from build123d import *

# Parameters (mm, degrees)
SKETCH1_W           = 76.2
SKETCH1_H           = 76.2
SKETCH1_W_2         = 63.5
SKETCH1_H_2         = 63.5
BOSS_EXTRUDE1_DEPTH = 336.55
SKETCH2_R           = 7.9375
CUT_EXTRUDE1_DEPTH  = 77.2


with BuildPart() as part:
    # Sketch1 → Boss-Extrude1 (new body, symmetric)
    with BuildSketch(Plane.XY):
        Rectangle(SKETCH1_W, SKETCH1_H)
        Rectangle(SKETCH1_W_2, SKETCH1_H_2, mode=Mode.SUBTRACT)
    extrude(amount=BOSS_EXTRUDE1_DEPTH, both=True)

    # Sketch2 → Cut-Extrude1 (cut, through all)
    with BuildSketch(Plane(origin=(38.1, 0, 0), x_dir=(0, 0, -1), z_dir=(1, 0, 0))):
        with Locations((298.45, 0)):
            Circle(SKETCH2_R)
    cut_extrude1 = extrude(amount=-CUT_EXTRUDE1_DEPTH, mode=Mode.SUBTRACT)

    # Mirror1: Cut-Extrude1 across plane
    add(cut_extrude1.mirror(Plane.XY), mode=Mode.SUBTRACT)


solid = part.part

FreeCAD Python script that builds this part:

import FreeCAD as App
import Part
import Sketcher
from FreeCAD import Vector
Q = App.Units.Quantity


def add_polygon(sketch, points):
    """Adds a closed chain of lines whose ends are joined by coincident constraints."""
    first, n = sketch.GeometryCount, len(points)
    for a, b in zip(points, points[1:] + points[:1]):
        sketch.addGeometry(Part.LineSegment(App.Vector(*a, 0), App.Vector(*b, 0)), False)
    for i in range(n):
        sketch.addConstraint(Sketcher.Constraint("Coincident", first + i, 2, first + (i + 1) % n, 1))

doc = App.newDocument("Part")
body = doc.addObject("PartDesign::Body", "Body")

sketch1 = doc.addObject("Sketcher::SketchObject", "Sketch")
body.addObject(sketch1)
sketch1.AttachmentSupport = (doc.XY_Plane, [""])
sketch1.MapMode = "FlatFace"
add_polygon(sketch1, [(-38, 38), (-38, -38), (38, -38), (38, 38)])
add_polygon(sketch1, [(32, -32), (-32, -32), (-32, 32), (32, 32)])
sketch1.addConstraint(Sketcher.Constraint("Vertical", 0))
sketch1.addConstraint(Sketcher.Constraint("Horizontal", 1))
sketch1.addConstraint(Sketcher.Constraint("Vertical", 2))
sketch1.addConstraint(Sketcher.Constraint("Horizontal", 3))
sketch1.addConstraint(Sketcher.Constraint("Horizontal", 4))
sketch1.addConstraint(Sketcher.Constraint("Vertical", 5))
sketch1.addConstraint(Sketcher.Constraint("Horizontal", 6))
sketch1.addConstraint(Sketcher.Constraint("Vertical", 7))
sketch1.addConstraint(Sketcher.Constraint("Symmetric", 0, 2, 2, 2, -1, 1))
sketch1.addConstraint(Sketcher.Constraint("Symmetric", 4, 2, 6, 2, -1, 1))
sketch1.addConstraint(Sketcher.Constraint("Equal", 3, 0))
sketch1.addConstraint(Sketcher.Constraint("Equal", 6, 5))
sketch1.addConstraint(Sketcher.Constraint("DistanceX", 1, 1, 1, 2, Q("3 in")))
sketch1.addConstraint(Sketcher.Constraint("DistanceX", 4, 2, 4, 1, Q("2.5 in")))
pad1 = doc.addObject("PartDesign::Pad", "Pad")
body.addObject(pad1)
pad1.Profile = sketch1
pad1.Length = Q("26.5 in")
pad1.Midplane = True

sketch2 = doc.addObject("Sketcher::SketchObject", "Sketch001")
body.addObject(sketch2)
sketch2.AttachmentSupport = (doc.YZ_Plane, [""])
sketch2.MapMode = "FlatFace"
sketch2.AttachmentOffset = App.Placement(Vector(0, 0, 1.5 * 25.4), App.Rotation())
sketch2.addGeometry(Part.Circle(Vector(0, -298, 0), Vector(0, 0, 1), 8), False)
sketch2.addConstraint(Sketcher.Constraint("PointOnObject", 0, 3, -2))
sketch2.addConstraint(Sketcher.Constraint("Diameter", 0, Q("0.625 in")))
sketch2.addConstraint(Sketcher.Constraint("DistanceY", 0, 3, -1, 1, Q("11.75 in")))
pocket1 = doc.addObject("PartDesign::Pocket", "Pocket")
body.addObject(pocket1)
pocket1.Profile = sketch2
pocket1.Type = "ThroughAll"
doc.recompute()

mirrored = doc.addObject("PartDesign::Mirrored", "Mirrored")
body.addObject(mirrored)
mirrored.Originals = [pocket1]
mirrored.MirrorPlane = (doc.XY_Plane, [""])
body.Tip = mirrored

doc.recompute()
